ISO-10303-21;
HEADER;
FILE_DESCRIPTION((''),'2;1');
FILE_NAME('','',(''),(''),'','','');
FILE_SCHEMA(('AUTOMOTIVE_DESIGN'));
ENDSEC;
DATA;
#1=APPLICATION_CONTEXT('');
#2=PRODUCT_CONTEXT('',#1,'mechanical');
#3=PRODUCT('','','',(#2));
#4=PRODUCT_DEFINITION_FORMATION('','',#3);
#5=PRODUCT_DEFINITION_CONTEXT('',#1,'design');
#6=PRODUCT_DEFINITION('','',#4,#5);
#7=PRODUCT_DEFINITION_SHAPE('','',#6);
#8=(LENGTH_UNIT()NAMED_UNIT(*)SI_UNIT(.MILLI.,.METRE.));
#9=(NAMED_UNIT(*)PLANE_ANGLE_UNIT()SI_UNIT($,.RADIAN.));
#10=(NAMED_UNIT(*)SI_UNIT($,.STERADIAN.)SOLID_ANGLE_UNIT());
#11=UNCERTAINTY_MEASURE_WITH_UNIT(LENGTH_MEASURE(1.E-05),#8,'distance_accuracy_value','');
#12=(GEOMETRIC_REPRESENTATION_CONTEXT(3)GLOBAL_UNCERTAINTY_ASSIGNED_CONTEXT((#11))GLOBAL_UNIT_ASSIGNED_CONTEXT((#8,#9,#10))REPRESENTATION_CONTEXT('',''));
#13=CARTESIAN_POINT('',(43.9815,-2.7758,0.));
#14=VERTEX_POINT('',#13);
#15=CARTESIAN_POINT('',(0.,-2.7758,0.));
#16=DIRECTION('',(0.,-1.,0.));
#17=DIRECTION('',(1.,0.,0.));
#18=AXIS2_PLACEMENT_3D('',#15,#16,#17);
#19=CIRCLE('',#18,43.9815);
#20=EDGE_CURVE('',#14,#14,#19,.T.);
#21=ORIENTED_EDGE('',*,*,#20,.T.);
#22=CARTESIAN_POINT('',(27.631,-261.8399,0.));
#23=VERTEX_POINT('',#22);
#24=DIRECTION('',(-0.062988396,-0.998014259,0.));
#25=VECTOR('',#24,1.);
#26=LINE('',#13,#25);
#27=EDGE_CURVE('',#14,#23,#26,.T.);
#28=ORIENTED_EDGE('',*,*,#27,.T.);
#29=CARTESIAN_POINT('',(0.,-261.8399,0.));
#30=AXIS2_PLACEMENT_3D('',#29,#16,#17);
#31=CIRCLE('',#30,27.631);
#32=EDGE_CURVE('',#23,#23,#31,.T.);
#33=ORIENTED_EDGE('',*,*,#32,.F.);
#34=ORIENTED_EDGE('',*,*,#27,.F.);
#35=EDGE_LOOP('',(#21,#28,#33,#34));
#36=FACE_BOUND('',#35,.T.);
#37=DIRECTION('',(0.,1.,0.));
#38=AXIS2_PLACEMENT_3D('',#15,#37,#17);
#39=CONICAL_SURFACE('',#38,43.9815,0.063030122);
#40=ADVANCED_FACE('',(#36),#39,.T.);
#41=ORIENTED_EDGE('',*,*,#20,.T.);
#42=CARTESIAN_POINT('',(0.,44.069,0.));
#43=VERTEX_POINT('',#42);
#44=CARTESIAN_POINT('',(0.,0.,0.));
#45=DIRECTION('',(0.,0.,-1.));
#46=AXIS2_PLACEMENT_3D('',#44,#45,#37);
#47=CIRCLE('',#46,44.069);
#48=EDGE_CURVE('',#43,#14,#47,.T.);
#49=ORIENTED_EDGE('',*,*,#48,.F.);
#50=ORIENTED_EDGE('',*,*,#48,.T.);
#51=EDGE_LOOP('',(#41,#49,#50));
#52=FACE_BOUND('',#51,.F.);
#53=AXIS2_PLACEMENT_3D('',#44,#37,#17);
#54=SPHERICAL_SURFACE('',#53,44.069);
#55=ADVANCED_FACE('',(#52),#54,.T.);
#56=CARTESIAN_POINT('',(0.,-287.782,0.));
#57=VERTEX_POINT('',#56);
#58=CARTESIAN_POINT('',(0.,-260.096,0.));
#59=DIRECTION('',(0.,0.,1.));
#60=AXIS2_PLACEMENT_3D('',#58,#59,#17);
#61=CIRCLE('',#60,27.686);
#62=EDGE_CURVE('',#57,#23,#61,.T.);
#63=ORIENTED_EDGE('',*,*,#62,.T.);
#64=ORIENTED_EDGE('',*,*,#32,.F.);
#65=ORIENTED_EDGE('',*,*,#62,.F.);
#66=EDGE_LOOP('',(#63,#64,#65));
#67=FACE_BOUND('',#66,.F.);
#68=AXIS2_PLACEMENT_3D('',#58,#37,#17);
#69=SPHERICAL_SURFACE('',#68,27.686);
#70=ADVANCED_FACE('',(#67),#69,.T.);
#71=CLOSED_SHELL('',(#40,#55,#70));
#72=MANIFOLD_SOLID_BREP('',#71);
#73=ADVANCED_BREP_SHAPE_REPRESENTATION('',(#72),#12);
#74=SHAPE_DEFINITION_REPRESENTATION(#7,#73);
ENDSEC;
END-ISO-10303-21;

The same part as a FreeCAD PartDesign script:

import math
import FreeCAD as App
import Part
import Sketcher
Q = App.Units.Quantity

doc = App.newDocument("Part")
body = doc.addObject("PartDesign::Body", "Body")

# Sketch on XY plane
sketch1 = body.newObject("Sketcher::SketchObject", "Sketch")
sketch1.AttachmentSupport = (doc.getObject("XY_Plane"), [""])
sketch1.MapMode = "FlatFace"
sketch1.addGeometry([
    Part.ArcOfCircle(Part.Circle(App.Vector(0, 0, 0), App.Vector(0, 0, 1), 44), math.radians(-4), math.radians(90)),
    Part.LineSegment(App.Vector(0, 44, 0), App.Vector(0, -288, 0)),
    Part.ArcOfCircle(Part.Circle(App.Vector(0, -260, 0), App.Vector(0, 0, 1), 28), math.radians(-90), math.radians(-4)),
    Part.LineSegment(App.Vector(28, -262, 0), App.Vector(44, -3, 0)),
], False)
sketch1.addConstraint([
    Sketcher.Constraint("Coincident", 0, 2, 1, 1),
    Sketcher.Constraint("Coincident", 1, 2, 2, 1),
    Sketcher.Constraint("Tangent", 2, 2, 3, 1),
    Sketcher.Constraint("Tangent", 3, 2, 0, 1),
    Sketcher.Constraint("Vertical", 1),
    Sketcher.Constraint("Coincident", 0, 3, -1, 1),
    Sketcher.Constraint("PointOnObject", 2, 3, -2),
    Sketcher.Constraint("PointOnObject", 0, 2, -2),
    Sketcher.Constraint("Radius", 2, Q("1.09 in")),
    Sketcher.Constraint("Radius", 0, Q("1.735 in")),
    Sketcher.Constraint("DistanceY", 2, 3, -1, 1, Q("10.24 in")),
])
revolution = body.newObject("PartDesign::Revolution", "Revolution")
revolution.Profile = sketch1
revolution.ReferenceAxis = (sketch1, ["V_Axis"])
revolution.Angle = 360

doc.recompute()
